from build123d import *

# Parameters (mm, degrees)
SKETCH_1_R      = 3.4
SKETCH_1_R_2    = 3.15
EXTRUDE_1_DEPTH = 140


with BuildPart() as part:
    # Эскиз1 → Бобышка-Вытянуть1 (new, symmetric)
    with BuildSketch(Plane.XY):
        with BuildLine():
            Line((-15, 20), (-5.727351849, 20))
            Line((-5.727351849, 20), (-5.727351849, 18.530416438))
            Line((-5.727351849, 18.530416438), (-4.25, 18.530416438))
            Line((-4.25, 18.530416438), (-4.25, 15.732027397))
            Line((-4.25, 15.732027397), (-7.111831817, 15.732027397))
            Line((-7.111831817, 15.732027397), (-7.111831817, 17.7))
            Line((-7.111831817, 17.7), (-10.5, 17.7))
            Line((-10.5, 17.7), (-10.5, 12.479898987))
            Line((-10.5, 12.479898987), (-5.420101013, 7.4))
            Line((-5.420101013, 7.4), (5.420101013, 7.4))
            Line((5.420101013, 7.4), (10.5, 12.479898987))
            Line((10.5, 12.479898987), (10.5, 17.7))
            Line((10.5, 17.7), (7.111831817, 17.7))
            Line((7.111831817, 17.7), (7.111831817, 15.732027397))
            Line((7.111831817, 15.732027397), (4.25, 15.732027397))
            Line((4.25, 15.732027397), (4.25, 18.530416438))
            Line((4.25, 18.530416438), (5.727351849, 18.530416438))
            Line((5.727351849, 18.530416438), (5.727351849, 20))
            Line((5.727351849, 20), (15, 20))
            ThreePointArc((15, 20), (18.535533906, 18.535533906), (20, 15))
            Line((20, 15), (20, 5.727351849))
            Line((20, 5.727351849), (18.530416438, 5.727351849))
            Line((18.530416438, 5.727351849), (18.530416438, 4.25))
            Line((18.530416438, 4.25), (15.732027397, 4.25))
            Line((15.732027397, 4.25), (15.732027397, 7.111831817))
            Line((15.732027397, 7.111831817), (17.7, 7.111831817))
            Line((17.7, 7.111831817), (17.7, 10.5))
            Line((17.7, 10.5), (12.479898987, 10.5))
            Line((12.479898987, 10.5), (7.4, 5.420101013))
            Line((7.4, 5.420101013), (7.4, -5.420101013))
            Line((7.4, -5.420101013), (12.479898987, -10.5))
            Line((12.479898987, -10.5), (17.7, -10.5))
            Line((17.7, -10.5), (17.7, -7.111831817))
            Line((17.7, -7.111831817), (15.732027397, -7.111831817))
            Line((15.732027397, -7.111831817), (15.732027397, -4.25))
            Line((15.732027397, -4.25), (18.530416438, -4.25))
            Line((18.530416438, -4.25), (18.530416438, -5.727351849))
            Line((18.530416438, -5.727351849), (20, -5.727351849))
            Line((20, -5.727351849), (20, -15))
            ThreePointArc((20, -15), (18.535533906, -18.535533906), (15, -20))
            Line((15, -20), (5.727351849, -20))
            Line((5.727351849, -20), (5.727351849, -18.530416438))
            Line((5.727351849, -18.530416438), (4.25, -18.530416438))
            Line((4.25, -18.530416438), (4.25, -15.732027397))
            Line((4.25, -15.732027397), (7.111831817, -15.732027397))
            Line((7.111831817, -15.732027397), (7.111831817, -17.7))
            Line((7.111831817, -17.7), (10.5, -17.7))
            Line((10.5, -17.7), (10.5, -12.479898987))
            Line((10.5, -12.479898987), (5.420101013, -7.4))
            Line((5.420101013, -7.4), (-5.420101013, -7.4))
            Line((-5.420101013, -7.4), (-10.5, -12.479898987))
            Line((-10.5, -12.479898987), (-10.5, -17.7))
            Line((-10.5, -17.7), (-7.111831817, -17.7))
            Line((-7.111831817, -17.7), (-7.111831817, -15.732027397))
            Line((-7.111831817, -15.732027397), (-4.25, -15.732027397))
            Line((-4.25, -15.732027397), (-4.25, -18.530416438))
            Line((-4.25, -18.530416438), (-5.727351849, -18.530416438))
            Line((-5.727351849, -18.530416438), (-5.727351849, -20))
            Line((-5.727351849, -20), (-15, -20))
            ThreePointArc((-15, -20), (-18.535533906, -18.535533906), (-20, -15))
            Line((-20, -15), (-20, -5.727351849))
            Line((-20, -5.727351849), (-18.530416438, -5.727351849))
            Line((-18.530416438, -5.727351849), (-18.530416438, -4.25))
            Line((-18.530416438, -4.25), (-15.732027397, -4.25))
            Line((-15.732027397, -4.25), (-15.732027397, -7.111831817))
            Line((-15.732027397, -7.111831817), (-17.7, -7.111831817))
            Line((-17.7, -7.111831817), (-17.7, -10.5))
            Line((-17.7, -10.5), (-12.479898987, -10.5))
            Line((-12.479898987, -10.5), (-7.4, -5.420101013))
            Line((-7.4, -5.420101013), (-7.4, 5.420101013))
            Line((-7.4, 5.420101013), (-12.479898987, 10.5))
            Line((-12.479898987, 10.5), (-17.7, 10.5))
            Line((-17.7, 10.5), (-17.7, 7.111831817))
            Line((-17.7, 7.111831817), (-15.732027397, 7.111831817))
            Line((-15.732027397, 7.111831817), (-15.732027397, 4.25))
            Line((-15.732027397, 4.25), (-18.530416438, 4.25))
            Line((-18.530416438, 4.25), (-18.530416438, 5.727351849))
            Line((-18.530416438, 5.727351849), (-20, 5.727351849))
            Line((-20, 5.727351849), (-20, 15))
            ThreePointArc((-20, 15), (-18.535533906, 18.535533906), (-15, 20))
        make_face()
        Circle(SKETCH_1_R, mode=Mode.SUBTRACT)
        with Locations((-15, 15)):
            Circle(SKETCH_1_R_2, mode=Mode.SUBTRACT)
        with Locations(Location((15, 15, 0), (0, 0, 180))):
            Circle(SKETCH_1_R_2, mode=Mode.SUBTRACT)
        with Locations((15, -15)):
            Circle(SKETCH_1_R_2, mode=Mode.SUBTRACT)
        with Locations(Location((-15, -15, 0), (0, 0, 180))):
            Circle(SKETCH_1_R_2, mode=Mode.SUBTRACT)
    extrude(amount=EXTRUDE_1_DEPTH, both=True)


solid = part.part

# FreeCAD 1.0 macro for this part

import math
import FreeCAD as App
import Part
import Sketcher
Q = App.Units.Quantity

doc = App.newDocument("Part")
body = doc.addObject("PartDesign::Body", "Body")

sketch1 = doc.addObject("Sketcher::SketchObject", "Sketch")
body.addObject(sketch1)
sketch1.AttachmentSupport = (doc.XY_Plane, [""])
sketch1.MapMode = "FlatFace"
sketch1.addGeometry([
    Part.LineSegment(App.Vector(-5.7, 20, 0), App.Vector(-15, 20, 0)),
    Part.ArcOfCircle(Part.Circle(App.Vector(-15, 15, 0), App.Vector(0, 0, 1), 5), math.radians(90), math.radians(180)),
    Part.LineSegment(App.Vector(-20, 15, 0), App.Vector(-20, 5.7, 0)),
    Part.LineSegment(App.Vector(-20, 5.7, 0), App.Vector(-18.5, 5.7, 0)),
    Part.LineSegment(App.Vector(-18.5, 5.7, 0), App.Vector(-18.5, 4.2, 0)),
    Part.LineSegment(App.Vector(-18.5, 4.2, 0), App.Vector(-15.7, 4.2, 0)),
    Part.LineSegment(App.Vector(-15.7, 4.2, 0), App.Vector(-15.7, 7.1, 0)),
    Part.LineSegment(App.Vector(-15.7, 7.1, 0), App.Vector(-17.7, 7.1, 0)),
    Part.LineSegment(App.Vector(-17.7, 7.1, 0), App.Vector(-17.7, 10.5, 0)),
    Part.LineSegment(App.Vector(-17.7, 10.5, 0), App.Vector(-12.5, 10.5, 0)),
    Part.LineSegment(App.Vector(-12.5, 10.5, 0), App.Vector(-7.4, 5.4, 0)),
    Part.LineSegment(App.Vector(-7.4, 5.4, 0), App.Vector(-7.4, -5.4, 0)),
    Part.LineSegment(App.Vector(-7.4, -5.4, 0), App.Vector(-12.5, -10.5, 0)),
    Part.LineSegment(App.Vector(-12.5, -10.5, 0), App.Vector(-17.7, -10.5, 0)),
    Part.LineSegment(App.Vector(-17.7, -10.5, 0), App.Vector(-17.7, -7.1, 0)),
    Part.LineSegment(App.Vector(-17.7, -7.1, 0), App.Vector(-15.7, -7.1, 0)),
    Part.LineSegment(App.Vector(-15.7, -7.1, 0), App.Vector(-15.7, -4.2, 0)),
    Part.LineSegment(App.Vector(-15.7, -4.2, 0), App.Vector(-18.5, -4.2, 0)),
    Part.LineSegment(App.Vector(-18.5, -4.2, 0), App.Vector(-18.5, -5.7, 0)),
    Part.LineSegment(App.Vector(-18.5, -5.7, 0), App.Vector(-20, -5.7, 0)),
    Part.LineSegment(App.Vector(-20, -5.7, 0), App.Vector(-20, -15, 0)),
    Part.ArcOfCircle(Part.Circle(App.Vector(-15, -15, 0), App.Vector(0, 0, 1), 5), math.radians(180), math.radians(270)),
    Part.LineSegment(App.Vector(-15, -20, 0), App.Vector(-5.7, -20, 0)),
    Part.LineSegment(App.Vector(-5.7, -20, 0), App.Vector(-5.7, -18.5, 0)),
    Part.LineSegment(App.Vector(-5.7, -18.5, 0), App.Vector(-4.2, -18.5, 0)),
    Part.LineSegment(App.Vector(-4.2, -18.5, 0), App.Vector(-4.2, -15.7, 0)),
    Part.LineSegment(App.Vector(-4.2, -15.7, 0), App.Vector(-7.1, -15.7, 0)),
    Part.LineSegment(App.Vector(-7.1, -15.7, 0), App.Vector(-7.1, -17.7, 0)),
    Part.LineSegment(App.Vector(-7.1, -17.7, 0), App.Vector(-10.5, -17.7, 0)),
    Part.LineSegment(App.Vector(-10.5, -17.7, 0), App.Vector(-10.5, -12.5, 0)),
    Part.LineSegment(App.Vector(-10.5, -12.5, 0), App.Vector(-5.4, -7.4, 0)),
    Part.LineSegment(App.Vector(-5.4, -7.4, 0), App.Vector(5.4, -7.4, 0)),
    Part.LineSegment(App.Vector(5.4, -7.4, 0), App.Vector(10.5, -12.5, 0)),
    Part.LineSegment(App.Vector(10.5, -12.5, 0), App.Vector(10.5, -17.7, 0)),
    Part.LineSegment(App.Vector(10.5, -17.7, 0), App.Vector(7.1, -17.7, 0)),
    Part.LineSegment(App.Vector(7.1, -17.7, 0), App.Vector(7.1, -15.7, 0)),
    Part.LineSegment(App.Vector(7.1, -15.7, 0), App.Vector(4.2, -15.7, 0)),
    Part.LineSegment(App.Vector(4.2, -15.7, 0), App.Vector(4.2, -18.5, 0)),
    Part.LineSegment(App.Vector(4.2, -18.5, 0), App.Vector(5.7, -18.5, 0)),
    Part.LineSegment(App.Vector(5.7, -18.5, 0), App.Vector(5.7, -20, 0)),
    Part.LineSegment(App.Vector(5.7, -20, 0), App.Vector(15, -20, 0)),
    Part.ArcOfCircle(Part.Circle(App.Vector(15, -15, 0), App.Vector(0, 0, 1), 5), math.radians(-90), math.radians(0)),
    Part.LineSegment(App.Vector(20, -15, 0), App.Vector(20, -5.7, 0)),
    Part.LineSegment(App.Vector(20, -5.7, 0), App.Vector(18.5, -5.7, 0)),
    Part.LineSegment(App.Vector(18.5, -5.7, 0), App.Vector(18.5, -4.2, 0)),
    Part.LineSegment(App.Vector(18.5, -4.2, 0), App.Vector(15.7, -4.2, 0)),
    Part.LineSegment(App.Vector(15.7, -4.2, 0), App.Vector(15.7, -7.1, 0)),
    Part.LineSegment(App.Vector(15.7, -7.1, 0), App.Vector(17.7, -7.1, 0)),
    Part.LineSegment(App.Vector(17.7, -7.1, 0), App.Vector(17.7, -10.5, 0)),
    Part.LineSegment(App.Vector(17.7, -10.5, 0), App.Vector(12.5, -10.5, 0)),
    Part.LineSegment(App.Vector(12.5, -10.5, 0), App.Vector(7.4, -5.4, 0)),
    Part.LineSegment(App.Vector(7.4, -5.4, 0), App.Vector(7.4, 5.4, 0)),
    Part.LineSegment(App.Vector(7.4, 5.4, 0), App.Vector(12.5, 10.5, 0)),
    Part.LineSegment(App.Vector(12.5, 10.5, 0), App.Vector(17.7, 10.5, 0)),
    Part.LineSegment(App.Vector(17.7, 10.5, 0), App.Vector(17.7, 7.1, 0)),
    Part.LineSegment(App.Vector(17.7, 7.1, 0), App.Vector(15.7, 7.1, 0)),
    Part.LineSegment(App.Vector(15.7, 7.1, 0), App.Vector(15.7, 4.2, 0)),
    Part.LineSegment(App.Vector(15.7, 4.2, 0), App.Vector(18.5, 4.2, 0)),
    Part.LineSegment(App.Vector(18.5, 4.2, 0), App.Vector(18.5, 5.7, 0)),
    Part.LineSegment(App.Vector(18.5, 5.7, 0), App.Vector(20, 5.7, 0)),
    Part.LineSegment(App.Vector(20, 5.7, 0), App.Vector(20, 15, 0)),
    Part.ArcOfCircle(Part.Circle(App.Vector(15, 15, 0), App.Vector(0, 0, 1), 5), math.radians(0), math.radians(90)),
    Part.LineSegment(App.Vector(15, 20, 0), App.Vector(5.7, 20, 0)),
    Part.LineSegment(App.Vector(5.7, 20, 0), App.Vector(5.7, 18.5, 0)),
    Part.LineSegment(App.Vector(5.7, 18.5, 0), App.Vector(4.2, 18.5, 0)),
    Part.LineSegment(App.Vector(4.2, 18.5, 0), App.Vector(4.2, 15.7, 0)),
    Part.LineSegment(App.Vector(4.2, 15.7, 0), App.Vector(7.1, 15.7, 0)),
    Part.LineSegment(App.Vector(7.1, 15.7, 0), App.Vector(7.1, 17.7, 0)),
    Part.LineSegment(App.Vector(7.1, 17.7, 0), App.Vector(10.5, 17.7, 0)),
    Part.LineSegment(App.Vector(10.5, 17.7, 0), App.Vector(10.5, 12.5, 0)),
    Part.LineSegment(App.Vector(10.5, 12.5, 0), App.Vector(5.4, 7.4, 0)),
    Part.LineSegment(App.Vector(5.4, 7.4, 0), App.Vector(-5.4, 7.4, 0)),
    Part.LineSegment(App.Vector(-5.4, 7.4, 0), App.Vector(-10.5, 12.5, 0)),
    Part.LineSegment(App.Vector(-10.5, 12.5, 0), App.Vector(-10.5, 17.7, 0)),
    Part.LineSegment(App.Vector(-10.5, 17.7, 0), App.Vector(-7.1, 17.7, 0)),
    Part.LineSegment(App.Vector(-7.1, 17.7, 0), App.Vector(-7.1, 15.7, 0)),
    Part.LineSegment(App.Vector(-7.1, 15.7, 0), App.Vector(-4.2, 15.7, 0)),
    Part.LineSegment(App.Vector(-4.2, 15.7, 0), App.Vector(-4.2, 18.5, 0)),
    Part.LineSegment(App.Vector(-4.2, 18.5, 0), App.Vector(-5.7, 18.5, 0)),
    Part.LineSegment(App.Vector(-5.7, 18.5, 0), App.Vector(-5.7, 20, 0)),
    Part.Circle(App.Vector(15, -15, 0), App.Vector(0, 0, 1), 3.1),
    Part.Circle(App.Vector(-15, -15, 0), App.Vector(0, 0, 1), 3.1),
    Part.Circle(App.Vector(15, 15, 0), App.Vector(0, 0, 1), 3.1),
    Part.Circle(App.Vector(0, 0, 0), App.Vector(0, 0, 1), 3.4),
    Part.Circle(App.Vector(-15, 15, 0), App.Vector(0, 0, 1), 3.1),
], False)
sketch1.addConstraint([
    Sketcher.Constraint("Tangent", 0, 2, 1, 1),
    Sketcher.Constraint("Tangent", 1, 2, 2, 1),
    Sketcher.Constraint("Coincident", 2, 2, 3, 1),
    Sketcher.Constraint("Coincident", 3, 2, 4, 1),
    Sketcher.Constraint("Coincident", 4, 2, 5, 1),
    Sketcher.Constraint("Coincident", 5, 2, 6, 1),
    Sketcher.Constraint("Coincident", 6, 2, 7, 1),
    Sketcher.Constraint("Coincident", 7, 2, 8, 1),
    Sketcher.Constraint("Coincident", 8, 2, 9, 1),
    Sketcher.Constraint("Coincident", 9, 2, 10, 1),
    Sketcher.Constraint("Coincident", 10, 2, 11, 1),
    Sketcher.Constraint("Coincident", 11, 2, 12, 1),
    Sketcher.Constraint("Coincident", 12, 2, 13, 1),
    Sketcher.Constraint("Coincident", 13, 2, 14, 1),
    Sketcher.Constraint("Coincident", 14, 2, 15, 1),
    Sketcher.Constraint("Coincident", 15, 2, 16, 1),
    Sketcher.Constraint("Coincident", 16, 2, 17, 1),
    Sketcher.Constraint("Coincident", 17, 2, 18, 1),
    Sketcher.Constraint("Coincident", 18, 2, 19, 1),
    Sketcher.Constraint("Coincident", 19, 2, 20, 1),
    Sketcher.Constraint("Tangent", 20, 2, 21, 1),
    Sketcher.Constraint("Tangent", 21, 2, 22, 1),
    Sketcher.Constraint("Coincident", 22, 2, 23, 1),
    Sketcher.Constraint("Coincident", 23, 2, 24, 1),
    Sketcher.Constraint("Coincident", 24, 2, 25, 1),
    Sketcher.Constraint("Coincident", 25, 2, 26, 1),
    Sketcher.Constraint("Coincident", 26, 2, 27, 1),
    Sketcher.Constraint("Coincident", 27, 2, 28, 1),
    Sketcher.Constraint("Coincident", 28, 2, 29, 1),
    Sketcher.Constraint("Coincident", 29, 2, 30, 1),
    Sketcher.Constraint("Coincident", 30, 2, 31, 1),
    Sketcher.Constraint("Coincident", 31, 2, 32, 1),
    Sketcher.Constraint("Coincident", 32, 2, 33, 1),
    Sketcher.Constraint("Coincident", 33, 2, 34, 1),
    Sketcher.Constraint("Coincident", 34, 2, 35, 1),
    Sketcher.Constraint("Coincident", 35, 2, 36, 1),
    Sketcher.Constraint("Coincident", 36, 2, 37, 1),
    Sketcher.Constraint("Coincident", 37, 2, 38, 1),
    Sketcher.Constraint("Coincident", 38, 2, 39, 1),
    Sketcher.Constraint("Coincident", 39, 2, 40, 1),
    Sketcher.Constraint("Tangent", 40, 2, 41, 1),
    Sketcher.Constraint("Tangent", 41, 2, 42, 1),
    Sketcher.Constraint("Coincident", 42, 2, 43, 1),
    Sketcher.Constraint("Coincident", 43, 2, 44, 1),
    Sketcher.Constraint("Coincident", 44, 2, 45, 1),
    Sketcher.Constraint("Coincident", 45, 2, 46, 1),
    Sketcher.Constraint("Coincident", 46, 2, 47, 1),
    Sketcher.Constraint("Coincident", 47, 2, 48, 1),
    Sketcher.Constraint("Coincident", 48, 2, 49, 1),
    Sketcher.Constraint("Coincident", 49, 2, 50, 1),
    Sketcher.Constraint("Coincident", 50, 2, 51, 1),
    Sketcher.Constraint("Coincident", 51, 2, 52, 1),
    Sketcher.Constraint("Coincident", 52, 2, 53, 1),
    Sketcher.Constraint("Coincident", 53, 2, 54, 1),
    Sketcher.Constraint("Coincident", 54, 2, 55, 1),
    Sketcher.Constraint("Coincident", 55, 2, 56, 1),
    Sketcher.Constraint("Coincident", 56, 2, 57, 1),
    Sketcher.Constraint("Coincident", 57, 2, 58, 1),
    Sketcher.Constraint("Coincident", 58, 2, 59, 1),
    Sketcher.Constraint("Coincident", 59, 2, 60, 1),
    Sketcher.Constraint("Tangent", 60, 2, 61, 1),
    Sketcher.Constraint("Tangent", 61, 2, 62, 1),
    Sketcher.Constraint("Coincident", 62, 2, 63, 1),
    Sketcher.Constraint("Coincident", 63, 2, 64, 1),
    Sketcher.Constraint("Coincident", 64, 2, 65, 1),
    Sketcher.Constraint("Coincident", 65, 2, 66, 1),
    Sketcher.Constraint("Coincident", 66, 2, 67, 1),
    Sketcher.Constraint("Coincident", 67, 2, 68, 1),
    Sketcher.Constraint("Coincident", 68, 2, 69, 1),
    Sketcher.Constraint("Coincident", 69, 2, 70, 1),
    Sketcher.Constraint("Coincident", 70, 2, 71, 1),
    Sketcher.Constraint("Coincident", 71, 2, 72, 1),
    Sketcher.Constraint("Coincident", 72, 2, 73, 1),
    Sketcher.Constraint("Coincident", 73, 2, 74, 1),
    Sketcher.Constraint("Coincident", 74, 2, 75, 1),
    Sketcher.Constraint("Coincident", 75, 2, 76, 1),
    Sketcher.Constraint("Coincident", 76, 2, 77, 1),
    Sketcher.Constraint("Coincident", 77, 2, 78, 1),
    Sketcher.Constraint("Coincident", 78, 2, 79, 1),
    Sketcher.Constraint("Coincident", 79, 2, 0, 1),
    Sketcher.Constraint("Horizontal", 0),
    Sketcher.Constraint("Vertical", 2),
    Sketcher.Constraint("Horizontal", 3),
    Sketcher.Constraint("Vertical", 4),
    Sketcher.Constraint("Horizontal", 5),
    Sketcher.Constraint("Vertical", 6),
    Sketcher.Constraint("Horizontal", 7),
    Sketcher.Constraint("Vertical", 8),
    Sketcher.Constraint("Horizontal", 9),
    Sketcher.Constraint("Vertical", 11),
    Sketcher.Constraint("Horizontal", 13),
    Sketcher.Constraint("Vertical", 14),
    Sketcher.Constraint("Horizontal", 15),
    Sketcher.Constraint("Vertical", 16),
    Sketcher.Constraint("Horizontal", 17),
    Sketcher.Constraint("Vertical", 18),
    Sketcher.Constraint("Horizontal", 19),
    Sketcher.Constraint("Vertical", 20),
    Sketcher.Constraint("Horizontal", 22),
    Sketcher.Constraint("Vertical", 23),
    Sketcher.Constraint("Horizontal", 24),
    Sketcher.Constraint("Vertical", 25),
    Sketcher.Constraint("Horizontal", 26),
    Sketcher.Constraint("Vertical", 27),
    Sketcher.Constraint("Horizontal", 28),
    Sketcher.Constraint("Vertical", 29),
    Sketcher.Constraint("Horizontal", 31),
    Sketcher.Constraint("Vertical", 33),
    Sketcher.Constraint("Horizontal", 34),
    Sketcher.Constraint("Vertical", 35),
    Sketcher.Constraint("Horizontal", 36),
    Sketcher.Constraint("Vertical", 37),
    Sketcher.Constraint("Horizontal", 38),
    Sketcher.Constraint("Vertical", 39),
    Sketcher.Constraint("Horizontal", 40),
    Sketcher.Constraint("Vertical", 42),
    Sketcher.Constraint("Horizontal", 43),
    Sketcher.Constraint("Vertical", 44),
    Sketcher.Constraint("Horizontal", 45),
    Sketcher.Constraint("Vertical", 46),
    Sketcher.Constraint("Horizontal", 47),
    Sketcher.Constraint("Vertical", 48),
    Sketcher.Constraint("Horizontal", 49),
    Sketcher.Constraint("Vertical", 51),
    Sketcher.Constraint("Horizontal", 53),
    Sketcher.Constraint("Vertical", 54),
    Sketcher.Constraint("Horizontal", 55),
    Sketcher.Constraint("Vertical", 56),
    Sketcher.Constraint("Horizontal", 57),
    Sketcher.Constraint("Vertical", 58),
    Sketcher.Constraint("Horizontal", 59),
    Sketcher.Constraint("Vertical", 60),
    Sketcher.Constraint("Horizontal", 62),
    Sketcher.Constraint("Vertical", 63),
    Sketcher.Constraint("Horizontal", 64),
    Sketcher.Constraint("Vertical", 65),
    Sketcher.Constraint("Horizontal", 66),
    Sketcher.Constraint("Vertical", 67),
    Sketcher.Constraint("Horizontal", 68),
    Sketcher.Constraint("Vertical", 69),
    Sketcher.Constraint("Horizontal", 71),
    Sketcher.Constraint("Vertical", 73),
    Sketcher.Constraint("Horizontal", 74),
    Sketcher.Constraint("Vertical", 75),
    Sketcher.Constraint("Horizontal", 76),
    Sketcher.Constraint("Vertical", 77),
    Sketcher.Constraint("Horizontal", 78),
    Sketcher.Constraint("Vertical", 79),
    Sketcher.Constraint("Coincident", 83, 3, -1, 1),
    Sketcher.Constraint("Coincident", 80, 3, 41, 3),
    Sketcher.Constraint("Coincident", 81, 3, 21, 3),
    Sketcher.Constraint("Coincident", 82, 3, 61, 3),
    Sketcher.Constraint("Coincident", 84, 3, 1, 3),
    Sketcher.Constraint("Equal", 1, 21),
    Sketcher.Constraint("Equal", 21, 41),
    Sketcher.Constraint("Equal", 41, 61),
    Sketcher.Constraint("Equal", 80, 81),
    Sketcher.Constraint("Equal", 81, 82),
    Sketcher.Constraint("Equal", 82, 84),
    Sketcher.Constraint("Symmetric", 1, 3, 41, 3, -1, 1),
    Sketcher.Constraint("Symmetric", 21, 3, 61, 3, -1, 1),
    Sketcher.Constraint("Symmetric", 3, 2, 43, 2, -1, 1),
    Sketcher.Constraint("Symmetric", 5, 2, 45, 2, -1, 1),
    Sketcher.Constraint("Symmetric", 7, 2, 47, 2, -1, 1),
    Sketcher.Constraint("Symmetric", 9, 2, 49, 2, -1, 1),
    Sketcher.Constraint("Symmetric", 10, 2, 50, 2, -1, 1),
    Sketcher.Constraint("Symmetric", 12, 2, 52, 2, -1, 1),
    Sketcher.Constraint("Symmetric", 14, 2, 54, 2, -1, 1),
    Sketcher.Constraint("Symmetric", 16, 2, 56, 2, -1, 1),
    Sketcher.Constraint("Symmetric", 18, 2, 58, 2, -1, 1),
    Sketcher.Constraint("Symmetric", 23, 2, 63, 2, -1, 1),
    Sketcher.Constraint("Symmetric", 25, 2, 65, 2, -1, 1),
    Sketcher.Constraint("Symmetric", 27, 2, 67, 2, -1, 1),
    Sketcher.Constraint("Symmetric", 29, 2, 69, 2, -1, 1),
    Sketcher.Constraint("Symmetric", 30, 2, 70, 2, -1, 1),
    Sketcher.Constraint("Symmetric", 32, 2, 72, 2, -1, 1),
    Sketcher.Constraint("Symmetric", 34, 2, 74, 2, -1, 1),
    Sketcher.Constraint("Symmetric", 36, 2, 76, 2, -1, 1),
    Sketcher.Constraint("Symmetric", 38, 2, 78, 2, -1, 1),
    Sketcher.Constraint("Symmetric", 21, 3, 41, 3, -2),
    Sketcher.Constraint("Symmetric", 29, 2, 32, 2, -2),
    Sketcher.Constraint("Symmetric", 27, 2, 34, 2, -2),
    Sketcher.Constraint("Symmetric", 25, 2, 36, 2, -2),
    Sketcher.Constraint("Symmetric", 23, 2, 38, 2, -2),
    Sketcher.Constraint("Symmetric", 18, 2, 43, 2, -2),
    Sketcher.Constraint("Symmetric", 16, 2, 45, 2, -2),
    Sketcher.Constraint("Symmetric", 14, 2, 47, 2, -2),
    Sketcher.Constraint("Symmetric", 12, 2, 49, 2, -2),
    Sketcher.Constraint("Perpendicular", 10, 12),
    Sketcher.Constraint("Parallel", 12, 30),
    Sketcher.Constraint("Perpendicular", 30, 32),
    Sketcher.Constraint("Perpendicular", 50, 52),
    Sketcher.Constraint("Perpendicular", 70, 72),
    Sketcher.Constraint("Horizontal", 11, 2, 50, 2),
    Sketcher.Constraint("Equal", 62, 2),
    Sketcher.Constraint("Equal", 78, 4),
    Sketcher.Constraint("Equal", 76, 6),
    Sketcher.Constraint("Equal", 74, 8),
    Sketcher.Constraint("Equal", 71, 11),
    Sketcher.Constraint("Equal", 59, 23),
    Sketcher.Constraint("Equal", 57, 25),
    Sketcher.Constraint("Equal", 55, 27),
    Sketcher.Constraint("Equal", 53, 29),
    Sketcher.Constraint("Equal", 12, 30),
    Sketcher.Constraint("Radius", 1, Q("5 mm")),
    Sketcher.Constraint("Diameter", 80, Q("6.3 mm")),
    Sketcher.Constraint("Diameter", 83, Q("6.8 mm")),
    Sketcher.Constraint("DistanceX", 1, 3, -1, 1, Q("15 mm")),
    Sketcher.Constraint("DistanceX", 7, 2, -1, 1, Q("17.7 mm")),
    Sketcher.Constraint("DistanceY", -1, 1, 8, 2, Q("10.5 mm")),
    Sketcher.Constraint("DistanceX", 10, 2, -1, 1, Q("7.4 mm")),
    Sketcher.Constraint("DistanceY", -1, 1, 4, 2, Q("4.25 mm")),
    Sketcher.Constraint("DistanceX", 9, 1, 9, 2, Q("5.220101 mm")),
    Sketcher.Constraint("DistanceX", 0, 2, 0, 1, Q("9.272648 mm")),
    Sketcher.Constraint("DistanceX", 5, 1, 5, 2, Q("2.798389 mm")),
    Sketcher.Constraint("DistanceX", 26, 2, 26, 1, Q("2.861832 mm")),
    Sketcher.Constraint("DistanceX", 3, 1, 3, 2, Q("1.469584 mm")),
])
pad1 = doc.addObject("PartDesign::Pad", "Pad")
body.addObject(pad1)
pad1.Profile = sketch1
pad1.Length = 280
pad1.Midplane = True

doc.recompute()
